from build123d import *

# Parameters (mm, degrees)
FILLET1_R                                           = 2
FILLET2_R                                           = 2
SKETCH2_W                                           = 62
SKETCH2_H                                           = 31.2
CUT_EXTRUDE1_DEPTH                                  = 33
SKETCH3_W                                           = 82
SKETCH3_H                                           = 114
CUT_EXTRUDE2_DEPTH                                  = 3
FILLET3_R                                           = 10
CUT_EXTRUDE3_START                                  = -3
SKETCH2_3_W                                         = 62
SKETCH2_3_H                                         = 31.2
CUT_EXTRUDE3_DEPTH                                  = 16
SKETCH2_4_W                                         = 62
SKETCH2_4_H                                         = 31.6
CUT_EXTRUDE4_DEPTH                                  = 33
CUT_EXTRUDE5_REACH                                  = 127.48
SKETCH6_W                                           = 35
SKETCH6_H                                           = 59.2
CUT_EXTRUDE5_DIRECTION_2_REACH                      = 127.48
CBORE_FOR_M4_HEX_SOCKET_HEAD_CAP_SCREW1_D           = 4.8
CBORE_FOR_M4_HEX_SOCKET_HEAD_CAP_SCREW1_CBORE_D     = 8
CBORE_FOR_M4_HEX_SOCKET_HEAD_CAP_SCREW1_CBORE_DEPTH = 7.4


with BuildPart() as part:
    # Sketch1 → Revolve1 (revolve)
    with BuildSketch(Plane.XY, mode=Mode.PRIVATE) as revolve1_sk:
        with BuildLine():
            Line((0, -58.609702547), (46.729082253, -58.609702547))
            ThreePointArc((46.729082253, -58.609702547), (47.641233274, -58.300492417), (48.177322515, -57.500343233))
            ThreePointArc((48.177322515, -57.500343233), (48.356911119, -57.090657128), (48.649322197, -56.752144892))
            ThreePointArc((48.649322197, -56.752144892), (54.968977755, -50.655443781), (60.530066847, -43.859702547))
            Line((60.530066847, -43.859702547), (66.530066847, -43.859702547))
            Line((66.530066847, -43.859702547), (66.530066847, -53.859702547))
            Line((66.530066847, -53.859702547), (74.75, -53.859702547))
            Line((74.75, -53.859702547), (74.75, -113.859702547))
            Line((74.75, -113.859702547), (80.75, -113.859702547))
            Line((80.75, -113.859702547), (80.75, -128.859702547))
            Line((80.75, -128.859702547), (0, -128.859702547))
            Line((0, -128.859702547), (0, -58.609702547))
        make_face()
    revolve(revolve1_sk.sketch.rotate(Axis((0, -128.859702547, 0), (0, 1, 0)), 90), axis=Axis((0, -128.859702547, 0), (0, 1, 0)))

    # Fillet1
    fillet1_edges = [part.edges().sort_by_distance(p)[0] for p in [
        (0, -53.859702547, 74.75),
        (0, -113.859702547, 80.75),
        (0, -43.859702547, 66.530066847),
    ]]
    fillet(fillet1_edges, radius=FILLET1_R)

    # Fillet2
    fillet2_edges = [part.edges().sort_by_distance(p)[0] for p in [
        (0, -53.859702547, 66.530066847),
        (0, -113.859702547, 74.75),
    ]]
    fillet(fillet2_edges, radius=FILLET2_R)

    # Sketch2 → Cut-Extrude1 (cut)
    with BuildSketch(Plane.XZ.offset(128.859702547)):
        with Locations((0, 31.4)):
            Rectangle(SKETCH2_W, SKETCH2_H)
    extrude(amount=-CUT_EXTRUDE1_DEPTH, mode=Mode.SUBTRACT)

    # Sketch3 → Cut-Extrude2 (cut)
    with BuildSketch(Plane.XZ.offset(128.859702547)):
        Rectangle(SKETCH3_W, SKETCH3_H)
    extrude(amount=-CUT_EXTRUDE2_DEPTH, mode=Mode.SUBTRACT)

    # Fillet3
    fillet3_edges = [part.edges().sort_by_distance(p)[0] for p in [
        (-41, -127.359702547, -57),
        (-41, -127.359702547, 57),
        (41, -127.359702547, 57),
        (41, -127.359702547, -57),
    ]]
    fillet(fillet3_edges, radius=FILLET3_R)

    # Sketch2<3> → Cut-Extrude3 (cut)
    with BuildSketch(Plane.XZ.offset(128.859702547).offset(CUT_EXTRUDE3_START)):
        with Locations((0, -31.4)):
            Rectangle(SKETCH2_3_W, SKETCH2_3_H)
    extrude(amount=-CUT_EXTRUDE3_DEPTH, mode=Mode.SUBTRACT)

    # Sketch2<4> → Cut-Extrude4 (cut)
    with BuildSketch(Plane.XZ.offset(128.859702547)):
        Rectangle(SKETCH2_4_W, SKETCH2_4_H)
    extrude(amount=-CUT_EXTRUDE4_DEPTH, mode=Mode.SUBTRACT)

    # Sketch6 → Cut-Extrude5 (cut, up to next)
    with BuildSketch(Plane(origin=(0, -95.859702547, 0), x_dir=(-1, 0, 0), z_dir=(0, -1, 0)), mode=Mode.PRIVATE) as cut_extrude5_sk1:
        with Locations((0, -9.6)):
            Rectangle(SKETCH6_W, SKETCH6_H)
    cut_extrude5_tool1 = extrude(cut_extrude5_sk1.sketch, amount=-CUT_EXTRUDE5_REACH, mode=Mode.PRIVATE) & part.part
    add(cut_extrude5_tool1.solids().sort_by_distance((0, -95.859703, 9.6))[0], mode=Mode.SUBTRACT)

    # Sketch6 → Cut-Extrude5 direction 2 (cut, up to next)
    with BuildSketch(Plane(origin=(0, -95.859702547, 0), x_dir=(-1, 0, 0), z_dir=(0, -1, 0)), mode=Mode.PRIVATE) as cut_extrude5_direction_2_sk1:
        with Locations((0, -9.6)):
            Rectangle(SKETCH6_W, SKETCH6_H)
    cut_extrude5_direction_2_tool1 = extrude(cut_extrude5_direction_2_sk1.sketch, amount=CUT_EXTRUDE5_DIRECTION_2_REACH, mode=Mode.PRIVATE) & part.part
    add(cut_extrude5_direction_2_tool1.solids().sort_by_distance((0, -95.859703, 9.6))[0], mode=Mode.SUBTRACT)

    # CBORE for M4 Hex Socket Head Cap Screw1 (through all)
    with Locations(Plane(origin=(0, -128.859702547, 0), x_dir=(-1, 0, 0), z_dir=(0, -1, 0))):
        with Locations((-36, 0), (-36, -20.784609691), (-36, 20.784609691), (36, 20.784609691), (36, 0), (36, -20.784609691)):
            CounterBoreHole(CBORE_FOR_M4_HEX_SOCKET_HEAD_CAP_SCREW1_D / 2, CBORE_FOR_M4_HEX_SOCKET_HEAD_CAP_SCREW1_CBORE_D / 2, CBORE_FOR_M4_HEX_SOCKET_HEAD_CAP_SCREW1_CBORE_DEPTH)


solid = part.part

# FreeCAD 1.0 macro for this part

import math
import FreeCAD as App
import Part
import Sketcher

V = App.Vector


def edges_at(feature, points):
    """Names of the edges that pass closest to the given points."""
    edges = feature.Shape.Edges
    near = lambda p: min(range(len(edges)), key=lambda i: edges[i].distToShape(Part.Vertex(*p))[0])
    return sorted({f"Edge{near(p) + 1}" for p in points})

doc = App.newDocument("Part")
body = doc.addObject("PartDesign::Body", "Body")

sketch1 = body.newObject("Sketcher::SketchObject", "Sketch")
sketch1.AttachmentSupport = (doc.getObject("XY_Plane"), [""])
sketch1.MapMode = "FlatFace"
sketch1.addGeometry([
    Part.LineSegment(V(46.7, -58.6, 0), V(0, -58.6, 0)),
    Part.LineSegment(V(0, -58.6, 0), V(0, -128.9, 0)),
    Part.LineSegment(V(0, -128.9, 0), V(80.8, -128.9, 0)),
    Part.LineSegment(V(80.8, -128.9, 0), V(80.8, -113.9, 0)),
    Part.LineSegment(V(80.8, -113.9, 0), V(74.8, -113.9, 0)),
    Part.LineSegment(V(74.8, -113.9, 0), V(74.8, -53.9, 0)),
    Part.LineSegment(V(74.8, -53.9, 0), V(66.5, -53.9, 0)),
    Part.LineSegment(V(66.5, -53.9, 0), V(66.5, -43.9, 0)),
    Part.LineSegment(V(66.5, -43.9, 0), V(60.5, -43.9, 0)),
    Part.ArcOfCircle(Part.Circle(V(0, 0, 0), V(0, 0, 1), 74.7), math.radians(-49.4), math.radians(-35.93)),
    Part.ArcOfCircle(Part.Circle(V(49.6, -57.9, 0), V(0, 0, 1), 1.5), math.radians(131), math.radians(165)),
    Part.ArcOfCircle(Part.Circle(V(46.7, -57.1, 0), V(0, 0, 1), 1.5), math.radians(-90), math.radians(-15)),
], False)
sketch1.addConstraint([
    Sketcher.Constraint("Coincident", 0, 2, 1, 1),
    Sketcher.Constraint("Coincident", 1, 2, 2, 1),
    Sketcher.Constraint("Coincident", 2, 2, 3, 1),
    Sketcher.Constraint("Coincident", 3, 2, 4, 1),
    Sketcher.Constraint("Coincident", 4, 2, 5, 1),
    Sketcher.Constraint("Coincident", 5, 2, 6, 1),
    Sketcher.Constraint("Coincident", 6, 2, 7, 1),
    Sketcher.Constraint("Coincident", 7, 2, 8, 1),
    Sketcher.Constraint("Coincident", 8, 2, 9, 2),
    Sketcher.Constraint("Tangent", 9, 1, 10, 1),
    Sketcher.Constraint("Tangent", 10, 2, 11, 2),
    Sketcher.Constraint("Tangent", 11, 1, 0, 1),
    Sketcher.Constraint("Horizontal", 0),
    Sketcher.Constraint("Vertical", 1),
    Sketcher.Constraint("Horizontal", 2),
    Sketcher.Constraint("Vertical", 3),
    Sketcher.Constraint("Horizontal", 4),
    Sketcher.Constraint("Vertical", 5),
    Sketcher.Constraint("Horizontal", 6),
    Sketcher.Constraint("Vertical", 7),
    Sketcher.Constraint("Horizontal", 8),
    Sketcher.Constraint("Coincident", 9, 3, -1, 1),
    Sketcher.Constraint("Equal", 10, 11),
    Sketcher.Constraint("PointOnObject", 0, 2, -2),
    Sketcher.Constraint("Equal", 4, 8),
    Sketcher.Constraint("Radius", 10, 1.5),
    Sketcher.Constraint("DistanceX", 4, 2, 4, 1, 6.0),
    Sketcher.Constraint("DistanceY", 3, 1, 3, 2, 15.0),
    Sketcher.Constraint("DistanceY", 5, 1, 5, 2, 60.0),
    Sketcher.Constraint("DistanceY", 7, 1, 7, 2, 10.0),
    Sketcher.Constraint("Radius", 9, 74.75),
    Sketcher.Constraint("DistanceX", 2, 1, 2, 2, 80.75),
    Sketcher.Constraint("DistanceY", 1, 2, 1, 1, 70.25),
    Sketcher.Constraint("DistanceY", 10, 2, 9, 1, 0.748198),
    Sketcher.Constraint("DistanceX", 0, 2, 0, 1, 46.729082),
])
revolution = body.newObject("PartDesign::Revolution", "Revolution")
revolution.Profile = sketch1
revolution.ReferenceAxis = (sketch1, ["V_Axis"])
revolution.Angle = 360
doc.recompute()

fillet = body.newObject("PartDesign::Fillet", "Fillet")
fillet.Base = (revolution, edges_at(revolution, [(0, -53.86, 74.75), (0, -113.86, 80.75), (0, -43.86, 66.53)]))
fillet.Radius = 2
doc.recompute()

fillet2 = body.newObject("PartDesign::Fillet", "Fillet001")
fillet2.Base = (fillet, edges_at(fillet, [(0, -53.86, 66.53), (0, -113.86, 74.75)]))
fillet2.Radius = 2

sketch2 = body.newObject("Sketcher::SketchObject", "Sketch001")
sketch2.AttachmentSupport = (doc.getObject("XZ_Plane"), [""])
sketch2.MapMode = "FlatFace"
sketch2.AttachmentOffset = App.Placement(V(0, 0, 128.859703), App.Rotation())
sketch2.addGeometry([
    Part.LineSegment(V(-31, 47, 0), V(-31, 16, 0)),
    Part.LineSegment(V(-31, 16, 0), V(31, 16, 0)),
    Part.LineSegment(V(31, 16, 0), V(31, 47, 0)),
    Part.LineSegment(V(31, 47, 0), V(-31, 47, 0)),
], False)
sketch2.addConstraint([
    Sketcher.Constraint("Coincident", 0, 2, 1, 1),
    Sketcher.Constraint("Coincident", 1, 2, 2, 1),
    Sketcher.Constraint("Coincident", 2, 2, 3, 1),
    Sketcher.Constraint("Coincident", 3, 2, 0, 1),
    Sketcher.Constraint("Vertical", 0),
    Sketcher.Constraint("Horizontal", 1),
    Sketcher.Constraint("Vertical", 2),
    Sketcher.Constraint("Horizontal", 3),
    Sketcher.Constraint("DistanceX", 1, 1, 1, 2, 62.0),
    Sketcher.Constraint("DistanceY", 0, 2, 0, 1, 31.2),
    Sketcher.Constraint("DistanceX", 0, 2, -1, 1, 31.0),
    Sketcher.Constraint("DistanceY", -1, 1, 2, 2, 47.0),
])
pocket1 = body.newObject("PartDesign::Pocket", "Pocket")
pocket1.Profile = sketch2
pocket1.Length = 33

sketch3 = body.newObject("Sketcher::SketchObject", "Sketch002")
sketch3.AttachmentSupport = (doc.getObject("XZ_Plane"), [""])
sketch3.MapMode = "FlatFace"
sketch3.AttachmentOffset = App.Placement(V(0, 0, 128.859703), App.Rotation())
sketch3.addGeometry([
    Part.LineSegment(V(-41, 57, 0), V(-41, -57, 0)),
    Part.LineSegment(V(-41, -57, 0), V(41, -57, 0)),
    Part.LineSegment(V(41, -57, 0), V(41, 57, 0)),
    Part.LineSegment(V(41, 57, 0), V(-41, 57, 0)),
], False)
sketch3.addConstraint([
    Sketcher.Constraint("Coincident", 0, 2, 1, 1),
    Sketcher.Constraint("Coincident", 1, 2, 2, 1),
    Sketcher.Constraint("Coincident", 2, 2, 3, 1),
    Sketcher.Constraint("Coincident", 3, 2, 0, 1),
    Sketcher.Constraint("Vertical", 0),
    Sketcher.Constraint("Horizontal", 1),
    Sketcher.Constraint("Vertical", 2),
    Sketcher.Constraint("Horizontal", 3),
    Sketcher.Constraint("Symmetric", 0, 2, 2, 2, -1, 1),
    Sketcher.Constraint("DistanceX", 1, 1, 1, 2, 82.0),
    Sketcher.Constraint("DistanceY", 0, 2, 0, 1, 114.0),
])
pocket2 = body.newObject("PartDesign::Pocket", "Pocket001")
pocket2.Profile = sketch3
pocket2.Length = 3
doc.recompute()

fillet3 = body.newObject("PartDesign::Fillet", "Fillet002")
fillet3.Base = (pocket2, edges_at(pocket2, [
    (-41, -127.36, -57),
    (-41, -127.36, 57),
    (41, -127.36, 57),
    (41, -127.36, -57),
]))
fillet3.Radius = 10

sketch4 = body.newObject("Sketcher::SketchObject", "Sketch003")
sketch4.AttachmentSupport = (doc.getObject("XZ_Plane"), [""])
sketch4.MapMode = "FlatFace"
sketch4.AttachmentOffset = App.Placement(V(0, 0, 125.859703), App.Rotation())
sketch4.addGeometry([
    Part.LineSegment(V(-31, -16, 0), V(-31, -47, 0)),
    Part.LineSegment(V(-31, -47, 0), V(31, -47, 0)),
    Part.LineSegment(V(31, -47, 0), V(31, -16, 0)),
    Part.LineSegment(V(31, -16, 0), V(-31, -16, 0)),
], False)
sketch4.addConstraint([
    Sketcher.Constraint("Coincident", 0, 2, 1, 1),
    Sketcher.Constraint("Coincident", 1, 2, 2, 1),
    Sketcher.Constraint("Coincident", 2, 2, 3, 1),
    Sketcher.Constraint("Coincident", 3, 2, 0, 1),
    Sketcher.Constraint("Vertical", 0),
    Sketcher.Constraint("Horizontal", 1),
    Sketcher.Constraint("Vertical", 2),
    Sketcher.Constraint("Horizontal", 3),
    Sketcher.Constraint("DistanceX", 1, 1, 1, 2, 62.0),
    Sketcher.Constraint("DistanceY", 0, 2, 0, 1, 31.2),
    Sketcher.Constraint("DistanceX", 0, 2, -1, 1, 31.0),
    Sketcher.Constraint("DistanceY", 0, 2, -1, 1, 47.0),
])
pocket3 = body.newObject("PartDesign::Pocket", "Pocket002")
pocket3.Profile = sketch4
pocket3.Length = 16

sketch5 = body.newObject("Sketcher::SketchObject", "Sketch004")
sketch5.AttachmentSupport = (doc.getObject("XZ_Plane"), [""])
sketch5.MapMode = "FlatFace"
sketch5.AttachmentOffset = App.Placement(V(0, 0, 128.859703), App.Rotation())
sketch5.addGeometry([
    Part.LineSegment(V(-31, 16, 0), V(-31, -16, 0)),
    Part.LineSegment(V(-31, -16, 0), V(31, -16, 0)),
    Part.LineSegment(V(31, -16, 0), V(31, 16, 0)),
    Part.LineSegment(V(31, 16, 0), V(-31, 16, 0)),
], False)
sketch5.addConstraint([
    Sketcher.Constraint("Coincident", 0, 2, 1, 1),
    Sketcher.Constraint("Coincident", 1, 2, 2, 1),
    Sketcher.Constraint("Coincident", 2, 2, 3, 1),
    Sketcher.Constraint("Coincident", 3, 2, 0, 1),
    Sketcher.Constraint("Vertical", 0),
    Sketcher.Constraint("Horizontal", 1),
    Sketcher.Constraint("Vertical", 2),
    Sketcher.Constraint("Horizontal", 3),
    Sketcher.Constraint("Symmetric", 0, 2, 2, 2, -1, 1),
    Sketcher.Constraint("DistanceX", 1, 1, 1, 2, 62.0),
    Sketcher.Constraint("DistanceY", 0, 2, 0, 1, 31.6),
])
pocket4 = body.newObject("PartDesign::Pocket", "Pocket003")
pocket4.Profile = sketch5
pocket4.Length = 33

sketch6 = body.newObject("Sketcher::SketchObject", "Sketch005")
sketch6.AttachmentSupport = (doc.getObject("XZ_Plane"), [""])
sketch6.MapMode = "FlatFace"
sketch6.AttachmentOffset = App.Placement(V(0, 0, 95.859703), App.Rotation())
sketch6.addGeometry([
    Part.LineSegment(V(18, -20, 0), V(18, 39, 0)),
    Part.LineSegment(V(18, 39, 0), V(-18, 39, 0)),
    Part.LineSegment(V(-18, 39, 0), V(-18, -20, 0)),
    Part.LineSegment(V(-18, -20, 0), V(18, -20, 0)),
], False)
sketch6.addConstraint([
    Sketcher.Constraint("Coincident", 0, 2, 1, 1),
    Sketcher.Constraint("Coincident", 1, 2, 2, 1),
    Sketcher.Constraint("Coincident", 2, 2, 3, 1),
    Sketcher.Constraint("Coincident", 3, 2, 0, 1),
    Sketcher.Constraint("Vertical", 0),
    Sketcher.Constraint("Horizontal", 1),
    Sketcher.Constraint("Vertical", 2),
    Sketcher.Constraint("Horizontal", 3),
    Sketcher.Constraint("DistanceX", 1, 2, 1, 1, 35.0),
    Sketcher.Constraint("DistanceY", 0, 1, 0, 2, 59.2),
    Sketcher.Constraint("DistanceY", 2, 2, -1, 1, 20.0),
    Sketcher.Constraint("DistanceX", -1, 1, 0, 2, 17.5),
])
pocket5 = body.newObject("PartDesign::Pocket", "Pocket004")
pocket5.Profile = sketch6
pocket5.Type = "UpToFirst"

sketch7 = body.newObject("Sketcher::SketchObject", "Sketch006")
sketch7.AttachmentSupport = (doc.getObject("XZ_Plane"), [""])
sketch7.MapMode = "FlatFace"
sketch7.AttachmentOffset = App.Placement(V(0, 0, 95.859703), App.Rotation())
sketch7.addGeometry([
    Part.LineSegment(V(18, -20, 0), V(18, 39, 0)),
    Part.LineSegment(V(18, 39, 0), V(-18, 39, 0)),
    Part.LineSegment(V(-18, 39, 0), V(-18, -20, 0)),
    Part.LineSegment(V(-18, -20, 0), V(18, -20, 0)),
], False)
sketch7.addConstraint([
    Sketcher.Constraint("Coincident", 0, 2, 1, 1),
    Sketcher.Constraint("Coincident", 1, 2, 2, 1),
    Sketcher.Constraint("Coincident", 2, 2, 3, 1),
    Sketcher.Constraint("Coincident", 3, 2, 0, 1),
    Sketcher.Constraint("Vertical", 0),
    Sketcher.Constraint("Horizontal", 1),
    Sketcher.Constraint("Vertical", 2),
    Sketcher.Constraint("Horizontal", 3),
    Sketcher.Constraint("DistanceX", 1, 2, 1, 1, 35.0),
    Sketcher.Constraint("DistanceY", 0, 1, 0, 2, 59.2),
    Sketcher.Constraint("DistanceY", 2, 2, -1, 1, 20.0),
    Sketcher.Constraint("DistanceX", -1, 1, 0, 2, 17.5),
])
pocket6 = body.newObject("PartDesign::Pocket", "Pocket005")
pocket6.Profile = sketch7
pocket6.Length = 14
pocket6.Reversed = True

sketch8 = body.newObject("Sketcher::SketchObject", "Sketch007")
sketch8.AttachmentSupport = (doc.getObject("XZ_Plane"), [""])
sketch8.MapMode = "FlatFace"
sketch8.AttachmentOffset = App.Placement(V(0, 0, 128.859703), App.Rotation())
sketch8.addGeometry([
    Part.Circle(V(36, 0, 0), V(0, 0, 1), 2.4),
    Part.Circle(V(36, 20.8, 0), V(0, 0, 1), 2.4),
    Part.Circle(V(36, -20.8, 0), V(0, 0, 1), 2.4),
    Part.Circle(V(-36, -20.8, 0), V(0, 0, 1), 2.4),
    Part.Circle(V(-36, 0, 0), V(0, 0, 1), 2.4),
    Part.Circle(V(-36, 20.8, 0), V(0, 0, 1), 2.4),
], False)
sketch8.addConstraint([
    Sketcher.Constraint("Equal", 0, 1),
    Sketcher.Constraint("Equal", 1, 2),
    Sketcher.Constraint("Equal", 2, 3),
    Sketcher.Constraint("Equal", 3, 4),
    Sketcher.Constraint("Equal", 4, 5),
    Sketcher.Constraint("Symmetric", 1, 3, 3, 3, -1, 1),
    Sketcher.Constraint("Symmetric", 0, 3, 4, 3, -1, 1),
    Sketcher.Constraint("Symmetric", 2, 3, 5, 3, -1, 1),
    Sketcher.Constraint("Symmetric", 2, 3, 3, 3, -2),
    Sketcher.Constraint("PointOnObject", 0, 3, -1),
    Sketcher.Constraint("Vertical", 0, 3, 1, 3),
    Sketcher.Constraint("Diameter", 0, 4.8),
    Sketcher.Constraint("DistanceX", -1, 1, 0, 3, 36.0),
    Sketcher.Constraint("DistanceY", -1, 1, 1, 3, 20.78461),
])
doc.recompute()
hole = body.newObject("PartDesign::Hole", "Hole")
hole.Profile = sketch8
hole.ThreadType = "None"
hole.Diameter = 4.8
hole.DepthType = "ThroughAll"
hole.HoleCutType = "Counterbore"
hole.HoleCutDiameter = 8
hole.HoleCutDepth = 7.4

doc.recompute()
